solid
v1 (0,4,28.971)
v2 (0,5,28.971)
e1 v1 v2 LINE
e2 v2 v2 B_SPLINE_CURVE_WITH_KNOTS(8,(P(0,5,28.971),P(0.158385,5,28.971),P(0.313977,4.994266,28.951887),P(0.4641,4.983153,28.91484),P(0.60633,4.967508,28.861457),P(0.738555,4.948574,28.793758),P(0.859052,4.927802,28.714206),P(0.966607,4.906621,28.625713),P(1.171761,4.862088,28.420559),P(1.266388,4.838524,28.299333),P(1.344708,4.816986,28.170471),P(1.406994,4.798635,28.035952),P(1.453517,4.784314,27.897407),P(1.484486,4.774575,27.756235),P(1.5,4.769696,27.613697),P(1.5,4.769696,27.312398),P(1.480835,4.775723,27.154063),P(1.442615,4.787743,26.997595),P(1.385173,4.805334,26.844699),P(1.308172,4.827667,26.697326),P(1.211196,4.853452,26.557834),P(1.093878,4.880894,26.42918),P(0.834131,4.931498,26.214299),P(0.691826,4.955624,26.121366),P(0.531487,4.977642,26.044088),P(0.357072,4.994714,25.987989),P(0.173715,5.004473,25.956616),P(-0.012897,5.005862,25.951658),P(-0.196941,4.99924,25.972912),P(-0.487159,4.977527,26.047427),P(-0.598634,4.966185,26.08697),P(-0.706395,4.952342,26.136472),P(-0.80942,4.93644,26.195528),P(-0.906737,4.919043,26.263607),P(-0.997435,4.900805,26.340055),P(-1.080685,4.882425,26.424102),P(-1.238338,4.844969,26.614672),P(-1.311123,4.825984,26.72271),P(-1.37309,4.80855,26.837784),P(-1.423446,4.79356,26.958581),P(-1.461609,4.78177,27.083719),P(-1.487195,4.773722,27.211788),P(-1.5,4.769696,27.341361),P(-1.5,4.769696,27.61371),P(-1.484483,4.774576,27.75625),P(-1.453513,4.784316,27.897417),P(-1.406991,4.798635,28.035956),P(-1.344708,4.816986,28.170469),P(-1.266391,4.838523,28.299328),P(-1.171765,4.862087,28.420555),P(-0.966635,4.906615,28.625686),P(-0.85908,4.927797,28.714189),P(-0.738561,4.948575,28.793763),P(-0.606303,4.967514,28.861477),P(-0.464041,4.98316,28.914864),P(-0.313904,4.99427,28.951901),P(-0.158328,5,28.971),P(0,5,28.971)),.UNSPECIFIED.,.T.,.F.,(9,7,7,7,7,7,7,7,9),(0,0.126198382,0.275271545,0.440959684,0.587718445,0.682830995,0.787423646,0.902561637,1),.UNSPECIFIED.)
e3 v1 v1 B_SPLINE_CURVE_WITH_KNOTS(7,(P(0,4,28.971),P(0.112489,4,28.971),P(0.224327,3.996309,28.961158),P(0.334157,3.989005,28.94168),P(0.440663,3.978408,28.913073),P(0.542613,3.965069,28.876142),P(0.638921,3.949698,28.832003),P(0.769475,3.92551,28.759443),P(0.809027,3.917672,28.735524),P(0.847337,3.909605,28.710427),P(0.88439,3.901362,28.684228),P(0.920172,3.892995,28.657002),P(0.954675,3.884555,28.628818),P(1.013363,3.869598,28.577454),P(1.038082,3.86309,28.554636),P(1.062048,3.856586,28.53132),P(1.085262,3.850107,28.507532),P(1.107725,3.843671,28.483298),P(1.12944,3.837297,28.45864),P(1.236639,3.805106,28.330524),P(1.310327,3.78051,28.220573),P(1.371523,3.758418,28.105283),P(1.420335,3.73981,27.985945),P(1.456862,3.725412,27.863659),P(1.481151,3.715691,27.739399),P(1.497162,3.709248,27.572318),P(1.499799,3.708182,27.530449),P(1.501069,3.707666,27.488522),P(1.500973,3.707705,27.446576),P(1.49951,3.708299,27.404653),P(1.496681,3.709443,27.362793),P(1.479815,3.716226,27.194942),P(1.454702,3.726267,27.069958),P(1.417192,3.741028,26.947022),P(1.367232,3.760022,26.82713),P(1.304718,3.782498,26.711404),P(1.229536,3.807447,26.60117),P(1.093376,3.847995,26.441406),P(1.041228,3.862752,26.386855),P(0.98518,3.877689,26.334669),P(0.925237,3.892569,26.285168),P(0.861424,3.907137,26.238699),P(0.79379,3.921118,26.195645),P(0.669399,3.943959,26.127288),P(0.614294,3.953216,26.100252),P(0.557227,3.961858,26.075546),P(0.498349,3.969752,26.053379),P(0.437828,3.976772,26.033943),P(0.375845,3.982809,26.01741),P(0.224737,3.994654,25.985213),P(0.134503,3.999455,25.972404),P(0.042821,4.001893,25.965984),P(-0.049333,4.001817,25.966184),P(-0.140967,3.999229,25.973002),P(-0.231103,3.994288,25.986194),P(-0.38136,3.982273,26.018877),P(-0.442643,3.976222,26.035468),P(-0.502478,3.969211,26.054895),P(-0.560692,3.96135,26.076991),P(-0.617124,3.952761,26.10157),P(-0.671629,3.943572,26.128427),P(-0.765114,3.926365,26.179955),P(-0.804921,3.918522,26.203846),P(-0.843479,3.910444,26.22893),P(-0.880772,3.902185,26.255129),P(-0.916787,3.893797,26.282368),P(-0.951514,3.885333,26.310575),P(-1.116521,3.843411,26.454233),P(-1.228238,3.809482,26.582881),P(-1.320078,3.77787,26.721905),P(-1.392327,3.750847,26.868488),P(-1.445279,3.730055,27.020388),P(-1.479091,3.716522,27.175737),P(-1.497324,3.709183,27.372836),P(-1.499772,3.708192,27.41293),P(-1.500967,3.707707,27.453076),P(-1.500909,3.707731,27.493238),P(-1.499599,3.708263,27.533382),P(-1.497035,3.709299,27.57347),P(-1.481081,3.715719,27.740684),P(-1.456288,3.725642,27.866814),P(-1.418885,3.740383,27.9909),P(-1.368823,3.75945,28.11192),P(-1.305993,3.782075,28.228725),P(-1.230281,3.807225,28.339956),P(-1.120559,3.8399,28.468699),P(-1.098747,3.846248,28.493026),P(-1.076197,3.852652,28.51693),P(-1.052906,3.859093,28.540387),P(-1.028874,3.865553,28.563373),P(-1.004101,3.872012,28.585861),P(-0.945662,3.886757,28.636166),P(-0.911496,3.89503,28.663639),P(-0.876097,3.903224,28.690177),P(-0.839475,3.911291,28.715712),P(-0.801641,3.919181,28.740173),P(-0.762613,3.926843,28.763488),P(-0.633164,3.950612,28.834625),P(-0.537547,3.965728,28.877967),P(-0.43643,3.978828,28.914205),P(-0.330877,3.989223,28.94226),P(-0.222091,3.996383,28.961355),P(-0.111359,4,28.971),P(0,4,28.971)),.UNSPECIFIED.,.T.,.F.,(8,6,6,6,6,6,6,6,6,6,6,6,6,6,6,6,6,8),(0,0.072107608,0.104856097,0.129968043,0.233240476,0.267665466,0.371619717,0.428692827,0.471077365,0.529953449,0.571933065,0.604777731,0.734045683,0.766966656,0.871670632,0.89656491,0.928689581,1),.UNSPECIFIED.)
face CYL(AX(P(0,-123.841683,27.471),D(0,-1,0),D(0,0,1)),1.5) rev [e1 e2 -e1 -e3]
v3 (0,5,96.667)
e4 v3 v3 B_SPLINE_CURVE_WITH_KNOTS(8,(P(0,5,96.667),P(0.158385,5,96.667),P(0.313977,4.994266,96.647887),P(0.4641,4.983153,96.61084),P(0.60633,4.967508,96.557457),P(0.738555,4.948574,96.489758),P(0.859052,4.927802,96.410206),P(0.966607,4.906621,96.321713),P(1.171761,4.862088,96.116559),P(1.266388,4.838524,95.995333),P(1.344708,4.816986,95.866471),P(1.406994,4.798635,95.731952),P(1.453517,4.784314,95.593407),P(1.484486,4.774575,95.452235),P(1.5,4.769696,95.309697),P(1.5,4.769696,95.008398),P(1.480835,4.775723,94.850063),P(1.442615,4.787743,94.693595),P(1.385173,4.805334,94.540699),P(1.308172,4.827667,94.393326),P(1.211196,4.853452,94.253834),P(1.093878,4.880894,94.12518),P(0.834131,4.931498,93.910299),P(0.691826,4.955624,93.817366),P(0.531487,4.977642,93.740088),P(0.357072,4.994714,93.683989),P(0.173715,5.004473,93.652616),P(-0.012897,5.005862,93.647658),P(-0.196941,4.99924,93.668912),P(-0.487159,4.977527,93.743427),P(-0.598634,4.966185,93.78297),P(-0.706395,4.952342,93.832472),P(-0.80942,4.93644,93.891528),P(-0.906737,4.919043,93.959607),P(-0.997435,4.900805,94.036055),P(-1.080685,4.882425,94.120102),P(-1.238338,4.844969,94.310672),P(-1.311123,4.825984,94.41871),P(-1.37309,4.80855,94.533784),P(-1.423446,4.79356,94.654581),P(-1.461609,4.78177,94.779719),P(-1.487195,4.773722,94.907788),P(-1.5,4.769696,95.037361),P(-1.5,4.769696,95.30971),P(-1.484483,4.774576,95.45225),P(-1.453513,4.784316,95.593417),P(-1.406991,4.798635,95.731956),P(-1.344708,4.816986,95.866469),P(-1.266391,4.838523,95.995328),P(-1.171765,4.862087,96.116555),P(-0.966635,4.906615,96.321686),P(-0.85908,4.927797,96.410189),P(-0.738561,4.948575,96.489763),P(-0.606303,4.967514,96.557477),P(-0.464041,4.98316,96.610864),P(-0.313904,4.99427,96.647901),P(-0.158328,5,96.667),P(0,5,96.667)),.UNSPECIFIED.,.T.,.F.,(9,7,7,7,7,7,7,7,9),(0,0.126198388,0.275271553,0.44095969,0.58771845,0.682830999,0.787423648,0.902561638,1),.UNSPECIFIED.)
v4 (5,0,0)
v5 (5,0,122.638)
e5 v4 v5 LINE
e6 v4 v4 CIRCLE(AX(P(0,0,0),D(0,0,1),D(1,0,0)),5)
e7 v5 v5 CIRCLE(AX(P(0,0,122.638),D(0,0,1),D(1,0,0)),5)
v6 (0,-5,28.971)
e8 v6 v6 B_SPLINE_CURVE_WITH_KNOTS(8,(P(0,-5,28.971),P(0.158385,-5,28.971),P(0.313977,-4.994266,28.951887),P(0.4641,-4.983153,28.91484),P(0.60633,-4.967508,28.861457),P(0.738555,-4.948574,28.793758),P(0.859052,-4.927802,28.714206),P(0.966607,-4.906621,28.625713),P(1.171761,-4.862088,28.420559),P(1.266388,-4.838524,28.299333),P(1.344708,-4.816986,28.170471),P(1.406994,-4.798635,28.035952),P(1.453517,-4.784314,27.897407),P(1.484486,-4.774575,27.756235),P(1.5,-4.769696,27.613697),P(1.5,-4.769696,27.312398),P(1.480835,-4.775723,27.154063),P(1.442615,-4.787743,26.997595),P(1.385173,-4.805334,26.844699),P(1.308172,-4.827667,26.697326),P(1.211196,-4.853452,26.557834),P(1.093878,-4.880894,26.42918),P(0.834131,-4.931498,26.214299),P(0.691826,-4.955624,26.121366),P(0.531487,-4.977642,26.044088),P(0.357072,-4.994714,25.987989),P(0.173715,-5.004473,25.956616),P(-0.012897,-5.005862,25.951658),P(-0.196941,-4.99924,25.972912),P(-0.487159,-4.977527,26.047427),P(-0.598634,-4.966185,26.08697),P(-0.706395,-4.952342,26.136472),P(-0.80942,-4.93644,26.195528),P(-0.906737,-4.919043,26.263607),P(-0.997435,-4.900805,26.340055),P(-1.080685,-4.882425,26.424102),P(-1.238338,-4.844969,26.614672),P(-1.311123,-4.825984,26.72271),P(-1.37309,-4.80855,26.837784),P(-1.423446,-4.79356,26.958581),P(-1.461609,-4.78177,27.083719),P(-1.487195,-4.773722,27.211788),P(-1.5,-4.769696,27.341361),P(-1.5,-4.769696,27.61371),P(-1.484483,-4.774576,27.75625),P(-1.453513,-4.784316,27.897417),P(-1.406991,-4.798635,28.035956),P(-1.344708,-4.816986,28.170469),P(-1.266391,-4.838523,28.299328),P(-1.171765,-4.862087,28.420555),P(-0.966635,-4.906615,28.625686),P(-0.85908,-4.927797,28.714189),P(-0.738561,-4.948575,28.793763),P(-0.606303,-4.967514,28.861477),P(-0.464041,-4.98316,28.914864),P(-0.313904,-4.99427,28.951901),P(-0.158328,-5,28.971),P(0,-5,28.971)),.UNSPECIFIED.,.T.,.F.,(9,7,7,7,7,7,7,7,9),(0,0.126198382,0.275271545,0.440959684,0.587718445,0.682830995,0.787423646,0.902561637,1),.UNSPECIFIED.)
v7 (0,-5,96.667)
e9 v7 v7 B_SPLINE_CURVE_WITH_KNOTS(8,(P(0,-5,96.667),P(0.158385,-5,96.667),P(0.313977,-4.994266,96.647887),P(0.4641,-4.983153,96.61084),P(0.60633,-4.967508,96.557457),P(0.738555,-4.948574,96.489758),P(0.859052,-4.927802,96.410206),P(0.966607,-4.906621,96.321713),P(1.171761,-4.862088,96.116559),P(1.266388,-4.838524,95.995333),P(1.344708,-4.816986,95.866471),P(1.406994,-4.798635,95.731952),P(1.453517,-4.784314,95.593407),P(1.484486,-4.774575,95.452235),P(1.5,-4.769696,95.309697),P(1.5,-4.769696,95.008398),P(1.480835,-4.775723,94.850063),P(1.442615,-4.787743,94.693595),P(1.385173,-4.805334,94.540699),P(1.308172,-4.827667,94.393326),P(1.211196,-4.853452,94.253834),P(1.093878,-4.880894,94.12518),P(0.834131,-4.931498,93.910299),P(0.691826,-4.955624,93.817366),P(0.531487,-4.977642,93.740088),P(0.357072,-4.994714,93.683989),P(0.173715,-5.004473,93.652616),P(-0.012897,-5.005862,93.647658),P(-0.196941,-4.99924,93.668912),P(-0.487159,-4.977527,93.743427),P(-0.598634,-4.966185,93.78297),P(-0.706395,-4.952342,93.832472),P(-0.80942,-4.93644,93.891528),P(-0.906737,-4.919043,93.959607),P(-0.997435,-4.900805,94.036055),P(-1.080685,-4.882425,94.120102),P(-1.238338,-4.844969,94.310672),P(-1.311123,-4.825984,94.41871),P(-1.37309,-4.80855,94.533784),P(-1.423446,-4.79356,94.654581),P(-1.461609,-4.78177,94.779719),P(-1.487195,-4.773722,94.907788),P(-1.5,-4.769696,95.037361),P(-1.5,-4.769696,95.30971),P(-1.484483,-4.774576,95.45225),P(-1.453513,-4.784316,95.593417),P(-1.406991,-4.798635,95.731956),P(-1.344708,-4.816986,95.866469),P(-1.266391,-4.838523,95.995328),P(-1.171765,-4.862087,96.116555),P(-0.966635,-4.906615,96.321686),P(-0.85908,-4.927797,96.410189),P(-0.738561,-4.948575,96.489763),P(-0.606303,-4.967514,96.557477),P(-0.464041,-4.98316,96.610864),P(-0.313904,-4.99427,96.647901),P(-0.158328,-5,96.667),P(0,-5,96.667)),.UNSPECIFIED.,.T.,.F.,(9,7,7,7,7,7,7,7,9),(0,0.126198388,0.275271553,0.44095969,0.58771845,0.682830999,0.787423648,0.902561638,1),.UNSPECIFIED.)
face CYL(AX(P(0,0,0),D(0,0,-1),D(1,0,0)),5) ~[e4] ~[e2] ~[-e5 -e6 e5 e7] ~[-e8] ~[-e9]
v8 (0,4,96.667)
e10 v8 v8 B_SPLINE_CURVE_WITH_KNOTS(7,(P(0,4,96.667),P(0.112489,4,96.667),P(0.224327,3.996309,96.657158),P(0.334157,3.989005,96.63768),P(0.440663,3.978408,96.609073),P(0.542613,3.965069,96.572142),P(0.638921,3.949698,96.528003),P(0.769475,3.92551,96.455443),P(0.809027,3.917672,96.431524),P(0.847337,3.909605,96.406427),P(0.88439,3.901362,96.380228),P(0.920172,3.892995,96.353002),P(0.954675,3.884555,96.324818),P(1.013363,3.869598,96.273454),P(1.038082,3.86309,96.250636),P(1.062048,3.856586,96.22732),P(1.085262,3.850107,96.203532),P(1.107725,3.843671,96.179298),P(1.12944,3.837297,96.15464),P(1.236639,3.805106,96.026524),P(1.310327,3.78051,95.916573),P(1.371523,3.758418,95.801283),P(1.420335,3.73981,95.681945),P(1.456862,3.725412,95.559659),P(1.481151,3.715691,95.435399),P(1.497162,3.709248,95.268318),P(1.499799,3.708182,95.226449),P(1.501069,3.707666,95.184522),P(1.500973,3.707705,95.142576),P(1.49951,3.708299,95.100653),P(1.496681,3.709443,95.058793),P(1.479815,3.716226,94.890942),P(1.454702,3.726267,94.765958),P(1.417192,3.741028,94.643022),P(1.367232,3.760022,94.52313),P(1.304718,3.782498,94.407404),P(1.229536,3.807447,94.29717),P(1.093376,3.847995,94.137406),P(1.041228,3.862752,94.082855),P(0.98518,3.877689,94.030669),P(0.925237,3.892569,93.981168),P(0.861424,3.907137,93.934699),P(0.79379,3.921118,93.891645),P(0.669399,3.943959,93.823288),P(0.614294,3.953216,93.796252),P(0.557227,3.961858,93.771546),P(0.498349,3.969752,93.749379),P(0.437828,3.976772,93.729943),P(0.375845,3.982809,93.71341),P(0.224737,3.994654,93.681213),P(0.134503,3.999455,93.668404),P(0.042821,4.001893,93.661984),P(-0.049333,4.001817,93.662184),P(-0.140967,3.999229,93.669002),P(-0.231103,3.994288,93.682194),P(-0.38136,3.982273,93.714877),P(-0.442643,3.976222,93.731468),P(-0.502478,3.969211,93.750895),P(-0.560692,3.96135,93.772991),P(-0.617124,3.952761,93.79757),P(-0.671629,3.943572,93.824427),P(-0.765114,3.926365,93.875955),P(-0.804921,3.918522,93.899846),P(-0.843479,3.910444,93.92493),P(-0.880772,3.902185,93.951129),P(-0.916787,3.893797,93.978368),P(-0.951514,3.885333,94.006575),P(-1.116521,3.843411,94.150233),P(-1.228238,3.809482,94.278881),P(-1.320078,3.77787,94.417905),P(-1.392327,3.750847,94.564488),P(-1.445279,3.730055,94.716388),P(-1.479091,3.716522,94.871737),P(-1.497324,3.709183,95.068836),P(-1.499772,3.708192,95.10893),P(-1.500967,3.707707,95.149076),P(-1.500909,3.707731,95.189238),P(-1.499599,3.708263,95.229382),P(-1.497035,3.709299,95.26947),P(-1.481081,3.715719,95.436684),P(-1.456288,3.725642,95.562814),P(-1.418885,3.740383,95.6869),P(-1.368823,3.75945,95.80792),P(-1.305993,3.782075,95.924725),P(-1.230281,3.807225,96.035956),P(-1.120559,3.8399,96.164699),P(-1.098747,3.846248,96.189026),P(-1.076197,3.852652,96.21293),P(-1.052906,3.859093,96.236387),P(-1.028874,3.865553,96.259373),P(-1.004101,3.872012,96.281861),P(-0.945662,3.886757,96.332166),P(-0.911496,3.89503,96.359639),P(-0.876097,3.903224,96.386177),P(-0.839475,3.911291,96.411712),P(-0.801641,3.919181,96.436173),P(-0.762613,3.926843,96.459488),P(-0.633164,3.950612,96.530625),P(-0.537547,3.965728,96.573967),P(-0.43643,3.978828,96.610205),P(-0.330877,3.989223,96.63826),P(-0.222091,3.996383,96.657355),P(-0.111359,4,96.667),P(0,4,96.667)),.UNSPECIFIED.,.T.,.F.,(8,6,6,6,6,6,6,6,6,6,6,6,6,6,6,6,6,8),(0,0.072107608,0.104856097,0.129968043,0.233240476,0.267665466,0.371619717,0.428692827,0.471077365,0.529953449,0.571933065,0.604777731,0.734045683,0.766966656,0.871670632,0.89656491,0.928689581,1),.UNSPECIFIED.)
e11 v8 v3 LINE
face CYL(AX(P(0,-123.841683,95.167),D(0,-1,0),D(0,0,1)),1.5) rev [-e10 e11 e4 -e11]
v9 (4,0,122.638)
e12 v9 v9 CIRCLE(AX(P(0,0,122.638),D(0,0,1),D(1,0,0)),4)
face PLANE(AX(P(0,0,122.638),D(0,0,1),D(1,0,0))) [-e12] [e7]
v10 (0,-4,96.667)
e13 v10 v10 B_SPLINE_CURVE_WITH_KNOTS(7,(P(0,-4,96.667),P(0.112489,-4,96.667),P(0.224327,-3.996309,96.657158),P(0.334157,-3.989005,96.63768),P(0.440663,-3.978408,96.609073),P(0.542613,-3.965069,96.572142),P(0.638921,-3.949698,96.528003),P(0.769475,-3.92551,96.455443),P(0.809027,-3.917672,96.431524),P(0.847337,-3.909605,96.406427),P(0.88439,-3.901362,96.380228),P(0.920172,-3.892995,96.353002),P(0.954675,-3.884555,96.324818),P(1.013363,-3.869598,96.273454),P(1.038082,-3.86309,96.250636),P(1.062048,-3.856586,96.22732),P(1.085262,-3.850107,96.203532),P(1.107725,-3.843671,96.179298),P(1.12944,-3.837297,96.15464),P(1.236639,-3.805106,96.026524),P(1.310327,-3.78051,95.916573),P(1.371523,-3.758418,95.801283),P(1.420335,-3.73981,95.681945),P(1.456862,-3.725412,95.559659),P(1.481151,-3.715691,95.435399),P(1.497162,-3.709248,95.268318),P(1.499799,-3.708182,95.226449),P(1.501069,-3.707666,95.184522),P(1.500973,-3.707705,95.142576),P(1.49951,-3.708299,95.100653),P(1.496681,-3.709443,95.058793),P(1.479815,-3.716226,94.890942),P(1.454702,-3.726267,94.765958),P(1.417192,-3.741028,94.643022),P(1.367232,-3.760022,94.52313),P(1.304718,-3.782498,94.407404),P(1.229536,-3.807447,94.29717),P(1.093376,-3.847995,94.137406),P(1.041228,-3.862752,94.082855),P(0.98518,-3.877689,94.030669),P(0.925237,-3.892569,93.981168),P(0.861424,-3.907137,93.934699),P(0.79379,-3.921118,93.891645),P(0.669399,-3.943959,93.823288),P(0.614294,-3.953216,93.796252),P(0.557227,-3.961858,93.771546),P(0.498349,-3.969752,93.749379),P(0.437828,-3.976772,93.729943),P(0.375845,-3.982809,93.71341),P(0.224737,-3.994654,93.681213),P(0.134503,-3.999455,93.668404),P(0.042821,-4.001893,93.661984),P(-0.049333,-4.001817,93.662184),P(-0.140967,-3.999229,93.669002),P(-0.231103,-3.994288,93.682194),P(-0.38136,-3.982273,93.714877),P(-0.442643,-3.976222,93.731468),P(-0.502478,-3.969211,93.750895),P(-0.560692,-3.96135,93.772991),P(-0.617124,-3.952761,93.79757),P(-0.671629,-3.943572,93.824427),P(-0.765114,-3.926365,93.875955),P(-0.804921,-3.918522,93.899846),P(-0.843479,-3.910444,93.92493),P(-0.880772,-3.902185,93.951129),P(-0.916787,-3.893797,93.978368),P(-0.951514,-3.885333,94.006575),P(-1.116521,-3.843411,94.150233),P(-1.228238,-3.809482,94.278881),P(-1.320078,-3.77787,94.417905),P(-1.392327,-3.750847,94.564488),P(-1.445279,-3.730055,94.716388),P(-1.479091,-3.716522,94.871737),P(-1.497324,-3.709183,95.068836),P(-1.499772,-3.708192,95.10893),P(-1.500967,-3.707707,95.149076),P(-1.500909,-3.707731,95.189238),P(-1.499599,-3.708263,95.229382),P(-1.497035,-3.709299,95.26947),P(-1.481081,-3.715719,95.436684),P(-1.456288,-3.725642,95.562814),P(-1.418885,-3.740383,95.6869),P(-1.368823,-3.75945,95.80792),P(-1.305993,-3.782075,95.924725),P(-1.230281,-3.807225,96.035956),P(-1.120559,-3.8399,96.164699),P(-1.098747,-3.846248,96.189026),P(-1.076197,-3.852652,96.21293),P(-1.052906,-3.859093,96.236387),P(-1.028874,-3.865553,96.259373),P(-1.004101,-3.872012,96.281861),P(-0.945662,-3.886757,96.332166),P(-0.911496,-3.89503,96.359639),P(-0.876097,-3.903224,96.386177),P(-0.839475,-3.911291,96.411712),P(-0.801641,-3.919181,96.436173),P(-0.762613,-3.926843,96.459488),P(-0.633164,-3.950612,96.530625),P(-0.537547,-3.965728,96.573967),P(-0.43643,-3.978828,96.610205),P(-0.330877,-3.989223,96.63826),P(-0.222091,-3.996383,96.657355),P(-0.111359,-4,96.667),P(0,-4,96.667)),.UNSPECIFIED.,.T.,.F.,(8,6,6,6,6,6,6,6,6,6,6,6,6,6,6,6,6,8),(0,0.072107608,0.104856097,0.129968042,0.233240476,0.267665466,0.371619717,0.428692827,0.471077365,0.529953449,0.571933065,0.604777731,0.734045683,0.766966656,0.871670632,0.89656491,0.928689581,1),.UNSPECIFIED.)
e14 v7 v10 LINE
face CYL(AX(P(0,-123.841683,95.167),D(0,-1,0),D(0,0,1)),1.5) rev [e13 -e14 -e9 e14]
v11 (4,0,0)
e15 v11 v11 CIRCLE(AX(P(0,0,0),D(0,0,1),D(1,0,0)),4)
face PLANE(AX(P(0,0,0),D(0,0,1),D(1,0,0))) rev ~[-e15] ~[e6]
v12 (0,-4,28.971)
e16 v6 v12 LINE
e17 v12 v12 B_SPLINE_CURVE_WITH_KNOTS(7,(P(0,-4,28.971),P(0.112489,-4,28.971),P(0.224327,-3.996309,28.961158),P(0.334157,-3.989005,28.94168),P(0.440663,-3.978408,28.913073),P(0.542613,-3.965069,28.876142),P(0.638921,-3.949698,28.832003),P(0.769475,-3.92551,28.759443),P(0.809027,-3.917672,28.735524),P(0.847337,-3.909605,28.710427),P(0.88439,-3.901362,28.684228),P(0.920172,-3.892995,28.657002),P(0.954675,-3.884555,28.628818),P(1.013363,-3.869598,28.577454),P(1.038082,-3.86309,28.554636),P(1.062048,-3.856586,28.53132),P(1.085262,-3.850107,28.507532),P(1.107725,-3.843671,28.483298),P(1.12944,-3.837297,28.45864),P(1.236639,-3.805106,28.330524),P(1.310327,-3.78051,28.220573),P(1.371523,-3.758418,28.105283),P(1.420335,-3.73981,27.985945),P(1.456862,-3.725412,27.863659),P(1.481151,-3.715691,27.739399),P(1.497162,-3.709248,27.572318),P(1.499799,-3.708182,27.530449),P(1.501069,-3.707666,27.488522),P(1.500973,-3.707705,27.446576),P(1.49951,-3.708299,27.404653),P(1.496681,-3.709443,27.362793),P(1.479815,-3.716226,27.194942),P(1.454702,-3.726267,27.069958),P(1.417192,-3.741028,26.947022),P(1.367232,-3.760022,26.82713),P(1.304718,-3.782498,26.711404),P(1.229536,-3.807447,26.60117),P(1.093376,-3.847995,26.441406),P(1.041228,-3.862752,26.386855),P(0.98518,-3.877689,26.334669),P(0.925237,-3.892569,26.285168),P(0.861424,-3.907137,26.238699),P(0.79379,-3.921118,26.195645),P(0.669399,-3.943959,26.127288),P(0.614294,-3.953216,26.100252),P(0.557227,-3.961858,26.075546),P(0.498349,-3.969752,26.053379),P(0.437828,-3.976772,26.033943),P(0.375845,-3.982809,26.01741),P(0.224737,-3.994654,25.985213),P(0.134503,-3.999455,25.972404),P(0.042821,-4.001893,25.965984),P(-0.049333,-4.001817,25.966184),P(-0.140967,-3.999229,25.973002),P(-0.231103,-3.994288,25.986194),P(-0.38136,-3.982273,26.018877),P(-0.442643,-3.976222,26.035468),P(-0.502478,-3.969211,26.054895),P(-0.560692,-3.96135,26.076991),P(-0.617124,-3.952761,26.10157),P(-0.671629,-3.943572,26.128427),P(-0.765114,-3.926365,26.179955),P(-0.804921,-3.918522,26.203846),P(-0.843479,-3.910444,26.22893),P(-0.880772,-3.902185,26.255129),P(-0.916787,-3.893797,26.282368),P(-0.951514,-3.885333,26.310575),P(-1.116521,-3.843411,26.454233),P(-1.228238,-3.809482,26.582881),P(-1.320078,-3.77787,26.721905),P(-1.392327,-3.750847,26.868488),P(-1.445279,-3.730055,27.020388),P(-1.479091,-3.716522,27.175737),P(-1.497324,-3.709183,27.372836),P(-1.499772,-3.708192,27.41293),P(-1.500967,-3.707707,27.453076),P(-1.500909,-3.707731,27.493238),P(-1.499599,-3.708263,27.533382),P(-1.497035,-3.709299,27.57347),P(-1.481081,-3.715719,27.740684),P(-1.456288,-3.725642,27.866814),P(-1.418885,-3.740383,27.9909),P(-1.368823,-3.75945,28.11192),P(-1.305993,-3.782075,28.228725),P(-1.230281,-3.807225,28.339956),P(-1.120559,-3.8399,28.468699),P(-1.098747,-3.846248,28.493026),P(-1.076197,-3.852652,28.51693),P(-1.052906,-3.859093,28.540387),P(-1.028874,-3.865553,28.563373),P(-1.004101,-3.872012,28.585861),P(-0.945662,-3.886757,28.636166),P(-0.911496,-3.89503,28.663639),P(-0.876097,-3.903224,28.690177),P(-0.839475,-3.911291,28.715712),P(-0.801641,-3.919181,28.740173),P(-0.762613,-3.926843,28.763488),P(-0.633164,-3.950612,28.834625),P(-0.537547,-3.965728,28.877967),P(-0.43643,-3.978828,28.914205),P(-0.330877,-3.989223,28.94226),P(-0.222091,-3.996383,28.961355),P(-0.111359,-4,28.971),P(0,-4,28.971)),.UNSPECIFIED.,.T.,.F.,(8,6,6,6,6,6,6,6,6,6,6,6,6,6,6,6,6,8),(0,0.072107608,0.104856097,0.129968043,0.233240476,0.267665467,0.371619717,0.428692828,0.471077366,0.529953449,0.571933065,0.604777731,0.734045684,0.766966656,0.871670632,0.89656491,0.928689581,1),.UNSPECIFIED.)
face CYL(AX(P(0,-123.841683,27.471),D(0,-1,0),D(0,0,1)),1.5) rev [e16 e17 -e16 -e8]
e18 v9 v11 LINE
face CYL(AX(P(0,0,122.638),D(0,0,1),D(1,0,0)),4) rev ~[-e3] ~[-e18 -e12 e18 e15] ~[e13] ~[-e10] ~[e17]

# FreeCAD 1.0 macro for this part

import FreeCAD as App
import Part
import Sketcher

V = App.Vector

doc = App.newDocument("Part")
body = doc.addObject("PartDesign::Body", "Body")

# Sketch on XY plane
sketch1 = body.newObject("Sketcher::SketchObject", "Sketch")
sketch1.AttachmentSupport = (doc.getObject("XY_Plane"), [""])
sketch1.MapMode = "FlatFace"
sketch1.addGeometry(Part.Circle(V(0, 0, 0), V(0, 0, 1), 5), False)
sketch1.addConstraint(Sketcher.Constraint("Coincident", 0, 3, -1, 1))
sketch1.addConstraint(Sketcher.Constraint("Diameter", 0, 10.0))
pad1 = body.newObject("PartDesign::Pad", "Pad")
pad1.Profile = sketch1
pad1.Length = 122.638

# Sketch on XY plane
sketch2 = body.newObject("Sketcher::SketchObject", "Sketch001")
sketch2.AttachmentSupport = (doc.getObject("XY_Plane"), [""])
sketch2.MapMode = "FlatFace"
sketch2.AttachmentOffset = App.Placement(V(0, 0, 122.638), App.Rotation())
sketch2.addGeometry(Part.Circle(V(0, 0, 0), V(0, 0, 1), 4), False)
sketch2.addConstraint(Sketcher.Constraint("Coincident", 0, 3, -1, 1))
sketch2.addConstraint(Sketcher.Constraint("Diameter", 0, 8.0))
pocket1 = body.newObject("PartDesign::Pocket", "Pocket")
pocket1.Profile = sketch2
pocket1.Type = "UpToFirst"

# Sketch on XZ plane
sketch3 = body.newObject("Sketcher::SketchObject", "Sketch002")
sketch3.AttachmentSupport = (doc.getObject("XZ_Plane"), [""])
sketch3.MapMode = "FlatFace"
sketch3.addGeometry(Part.Circle(V(0, 27.5, 0), V(0, 0, 1), 1.5), False)
sketch3.addGeometry(Part.Circle(V(0, 95.2, 0), V(0, 0, 1), 1.5), False)
sketch3.addConstraint(Sketcher.Constraint("Equal", 0, 1))
sketch3.addConstraint(Sketcher.Constraint("PointOnObject", 0, 3, -2))
sketch3.addConstraint(Sketcher.Constraint("PointOnObject", 1, 3, -2))
sketch3.addConstraint(Sketcher.Constraint("Diameter", 0, 3.0))
sketch3.addConstraint(Sketcher.Constraint("DistanceY", -1, 1, 0, 3, 27.471))
sketch3.addConstraint(Sketcher.Constraint("DistanceY", -1, 1, 1, 3, 95.167))
pocket2 = body.newObject("PartDesign::Pocket", "Pocket001")
pocket2.Profile = sketch3
pocket2.Type = "ThroughAll"
pocket2.Midplane = True

doc.recompute()
